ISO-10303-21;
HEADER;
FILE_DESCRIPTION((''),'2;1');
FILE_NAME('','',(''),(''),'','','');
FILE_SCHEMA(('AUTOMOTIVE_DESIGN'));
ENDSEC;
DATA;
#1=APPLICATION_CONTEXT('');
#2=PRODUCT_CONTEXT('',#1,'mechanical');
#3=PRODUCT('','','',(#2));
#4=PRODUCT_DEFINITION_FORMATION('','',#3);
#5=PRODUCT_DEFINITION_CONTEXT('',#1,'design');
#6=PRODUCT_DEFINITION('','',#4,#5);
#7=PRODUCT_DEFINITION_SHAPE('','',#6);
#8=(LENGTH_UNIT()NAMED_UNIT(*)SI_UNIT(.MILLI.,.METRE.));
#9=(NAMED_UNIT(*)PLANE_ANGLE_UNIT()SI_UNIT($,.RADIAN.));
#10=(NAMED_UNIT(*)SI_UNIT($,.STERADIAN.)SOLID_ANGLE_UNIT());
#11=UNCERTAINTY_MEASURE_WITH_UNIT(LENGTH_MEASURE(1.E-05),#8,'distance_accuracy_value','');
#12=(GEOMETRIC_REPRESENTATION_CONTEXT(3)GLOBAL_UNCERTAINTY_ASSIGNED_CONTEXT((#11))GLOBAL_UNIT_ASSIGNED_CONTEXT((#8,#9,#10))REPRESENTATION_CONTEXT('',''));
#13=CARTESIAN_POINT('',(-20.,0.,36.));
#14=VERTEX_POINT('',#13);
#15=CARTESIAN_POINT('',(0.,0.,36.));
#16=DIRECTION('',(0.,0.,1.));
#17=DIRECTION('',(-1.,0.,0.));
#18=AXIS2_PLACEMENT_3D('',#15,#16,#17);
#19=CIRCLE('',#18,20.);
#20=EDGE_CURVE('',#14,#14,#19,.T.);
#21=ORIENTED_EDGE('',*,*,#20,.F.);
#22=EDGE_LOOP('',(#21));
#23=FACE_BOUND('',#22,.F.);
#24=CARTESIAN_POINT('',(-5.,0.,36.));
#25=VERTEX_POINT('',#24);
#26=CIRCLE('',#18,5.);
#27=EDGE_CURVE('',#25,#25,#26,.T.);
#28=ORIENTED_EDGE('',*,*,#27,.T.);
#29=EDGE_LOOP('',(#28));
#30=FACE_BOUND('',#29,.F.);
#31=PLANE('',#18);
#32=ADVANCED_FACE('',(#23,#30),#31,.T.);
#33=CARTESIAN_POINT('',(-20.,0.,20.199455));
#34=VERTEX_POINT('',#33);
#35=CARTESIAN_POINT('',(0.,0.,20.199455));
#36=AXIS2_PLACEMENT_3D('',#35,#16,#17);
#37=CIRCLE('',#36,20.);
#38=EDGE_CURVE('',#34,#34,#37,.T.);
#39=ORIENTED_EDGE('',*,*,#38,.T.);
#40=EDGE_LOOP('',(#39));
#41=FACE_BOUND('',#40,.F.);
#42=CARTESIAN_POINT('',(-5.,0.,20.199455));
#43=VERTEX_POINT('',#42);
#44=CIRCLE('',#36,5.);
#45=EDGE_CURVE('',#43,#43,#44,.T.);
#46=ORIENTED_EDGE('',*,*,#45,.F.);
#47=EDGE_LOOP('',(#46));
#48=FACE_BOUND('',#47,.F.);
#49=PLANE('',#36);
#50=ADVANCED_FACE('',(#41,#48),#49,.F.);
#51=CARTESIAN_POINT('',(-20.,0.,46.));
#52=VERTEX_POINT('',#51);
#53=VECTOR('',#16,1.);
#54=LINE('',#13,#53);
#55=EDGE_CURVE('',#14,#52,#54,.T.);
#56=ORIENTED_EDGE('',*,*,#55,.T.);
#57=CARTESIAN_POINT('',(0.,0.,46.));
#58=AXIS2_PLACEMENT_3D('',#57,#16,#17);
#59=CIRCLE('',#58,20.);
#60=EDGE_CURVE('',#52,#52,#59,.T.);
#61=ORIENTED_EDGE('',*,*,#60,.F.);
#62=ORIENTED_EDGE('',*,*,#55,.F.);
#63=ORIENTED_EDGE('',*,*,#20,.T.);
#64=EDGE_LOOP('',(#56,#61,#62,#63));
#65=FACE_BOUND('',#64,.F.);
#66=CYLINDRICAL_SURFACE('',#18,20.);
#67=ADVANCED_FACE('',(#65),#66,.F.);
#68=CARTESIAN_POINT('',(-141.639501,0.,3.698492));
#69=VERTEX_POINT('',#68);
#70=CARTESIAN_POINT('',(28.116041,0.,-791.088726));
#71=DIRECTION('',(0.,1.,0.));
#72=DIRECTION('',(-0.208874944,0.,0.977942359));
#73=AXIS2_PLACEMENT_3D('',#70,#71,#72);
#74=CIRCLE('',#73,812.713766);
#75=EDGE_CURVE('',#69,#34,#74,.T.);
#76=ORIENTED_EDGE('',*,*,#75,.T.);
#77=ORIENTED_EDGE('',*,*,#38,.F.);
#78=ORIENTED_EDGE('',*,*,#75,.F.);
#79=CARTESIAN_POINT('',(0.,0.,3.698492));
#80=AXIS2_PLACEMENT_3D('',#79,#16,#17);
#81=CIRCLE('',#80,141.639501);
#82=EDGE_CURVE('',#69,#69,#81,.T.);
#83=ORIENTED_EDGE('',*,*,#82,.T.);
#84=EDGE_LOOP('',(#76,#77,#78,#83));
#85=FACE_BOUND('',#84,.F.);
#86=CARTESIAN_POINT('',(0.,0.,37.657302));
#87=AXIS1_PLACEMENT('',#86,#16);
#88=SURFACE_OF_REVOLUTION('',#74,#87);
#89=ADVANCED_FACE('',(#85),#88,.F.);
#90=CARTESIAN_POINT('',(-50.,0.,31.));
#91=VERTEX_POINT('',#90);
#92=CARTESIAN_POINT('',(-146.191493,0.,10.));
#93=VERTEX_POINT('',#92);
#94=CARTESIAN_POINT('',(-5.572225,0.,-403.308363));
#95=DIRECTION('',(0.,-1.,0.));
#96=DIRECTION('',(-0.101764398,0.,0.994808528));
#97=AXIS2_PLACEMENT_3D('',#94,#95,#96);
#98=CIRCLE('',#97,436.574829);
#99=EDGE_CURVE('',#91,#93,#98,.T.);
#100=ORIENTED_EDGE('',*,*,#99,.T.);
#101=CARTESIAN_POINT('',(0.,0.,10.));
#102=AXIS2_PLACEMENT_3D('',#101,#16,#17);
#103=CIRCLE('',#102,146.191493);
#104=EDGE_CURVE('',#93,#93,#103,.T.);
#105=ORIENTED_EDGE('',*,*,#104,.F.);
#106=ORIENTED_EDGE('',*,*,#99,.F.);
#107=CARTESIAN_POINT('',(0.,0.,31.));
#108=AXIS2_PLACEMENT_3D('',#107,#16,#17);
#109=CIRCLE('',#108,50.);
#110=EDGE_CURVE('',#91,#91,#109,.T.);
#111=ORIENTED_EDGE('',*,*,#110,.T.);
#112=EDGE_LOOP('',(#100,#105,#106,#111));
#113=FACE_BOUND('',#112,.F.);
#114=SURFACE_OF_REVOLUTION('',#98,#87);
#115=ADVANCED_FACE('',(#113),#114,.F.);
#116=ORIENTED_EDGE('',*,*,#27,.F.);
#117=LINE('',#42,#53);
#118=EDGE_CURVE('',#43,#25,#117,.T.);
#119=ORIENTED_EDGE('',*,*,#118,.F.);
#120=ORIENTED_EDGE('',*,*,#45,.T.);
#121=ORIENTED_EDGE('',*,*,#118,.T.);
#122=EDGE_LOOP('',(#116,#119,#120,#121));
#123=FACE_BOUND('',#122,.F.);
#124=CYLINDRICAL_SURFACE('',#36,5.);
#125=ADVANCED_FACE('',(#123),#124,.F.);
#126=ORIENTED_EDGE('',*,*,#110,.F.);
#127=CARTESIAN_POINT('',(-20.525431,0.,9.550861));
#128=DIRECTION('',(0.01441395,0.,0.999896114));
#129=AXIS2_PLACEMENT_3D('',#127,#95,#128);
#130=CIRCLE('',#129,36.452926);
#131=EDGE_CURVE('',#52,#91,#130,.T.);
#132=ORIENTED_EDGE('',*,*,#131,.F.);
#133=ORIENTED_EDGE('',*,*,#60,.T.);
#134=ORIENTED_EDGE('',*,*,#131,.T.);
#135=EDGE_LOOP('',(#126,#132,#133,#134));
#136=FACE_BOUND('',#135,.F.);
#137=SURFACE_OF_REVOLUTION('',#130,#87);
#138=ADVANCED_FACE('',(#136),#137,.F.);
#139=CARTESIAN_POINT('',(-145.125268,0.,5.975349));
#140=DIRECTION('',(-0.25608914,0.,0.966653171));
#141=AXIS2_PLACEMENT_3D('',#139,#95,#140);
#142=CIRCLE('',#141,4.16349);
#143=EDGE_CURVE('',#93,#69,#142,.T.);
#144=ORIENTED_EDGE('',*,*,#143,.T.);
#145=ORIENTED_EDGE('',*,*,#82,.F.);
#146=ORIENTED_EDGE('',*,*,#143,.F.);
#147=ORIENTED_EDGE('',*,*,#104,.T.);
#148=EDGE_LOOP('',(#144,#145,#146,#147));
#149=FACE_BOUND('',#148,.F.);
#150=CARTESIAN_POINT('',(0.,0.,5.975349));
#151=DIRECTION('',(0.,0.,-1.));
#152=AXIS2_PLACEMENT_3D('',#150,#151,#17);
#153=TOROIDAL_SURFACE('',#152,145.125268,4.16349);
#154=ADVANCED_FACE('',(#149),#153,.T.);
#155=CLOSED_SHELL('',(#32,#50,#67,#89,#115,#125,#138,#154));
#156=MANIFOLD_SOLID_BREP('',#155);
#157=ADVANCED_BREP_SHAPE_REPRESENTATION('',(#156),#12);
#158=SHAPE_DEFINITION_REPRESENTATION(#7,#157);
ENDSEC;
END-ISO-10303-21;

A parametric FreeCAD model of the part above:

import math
import FreeCAD as App
import Part
import Sketcher
Q = App.Units.Quantity

doc = App.newDocument("Part")
body = doc.addObject("PartDesign::Body", "Body")

sketch1 = body.newObject("Sketcher::SketchObject", "Sketch")
sketch1.AttachmentSupport = (doc.getObject("XZ_Plane"), [""])
sketch1.MapMode = "FlatFace"
sketch1.addGeometry([
    Part.LineSegment(App.Vector(-5, 20.199455, 0), App.Vector(-5, 36, 0)),
    Part.LineSegment(App.Vector(-5, 36, 0), App.Vector(-20, 36, 0)),
    Part.LineSegment(App.Vector(-20, 36, 0), App.Vector(-20, 46, 0)),
    Part.ArcOfCircle(Part.Circle(App.Vector(-20.525431, 9.550861, 0), App.Vector(0, 0, 1), 36.452926), math.radians(89.174113), math.radians(143.955989)),
    Part.ArcOfCircle(Part.Circle(App.Vector(-5.572225, -403.308363, 0), App.Vector(0, 0, 1), 436.574829), math.radians(95.840781), math.radians(108.789766)),
    Part.ArcOfCircle(Part.Circle(App.Vector(-145.125268, 5.975349, 0), App.Vector(0, 0, 1), 4.16349), math.radians(104.838131), math.radians(326.847964)),
    Part.ArcOfCircle(Part.Circle(App.Vector(28.116041, -791.088726, 0), App.Vector(0, 0, 1), 812.713766), math.radians(93.394134), math.radians(102.056429)),
    Part.LineSegment(App.Vector(-20, 20.199455, 0), App.Vector(-5, 20.199455, 0)),
], False)
sketch1.addConstraint([
    Sketcher.Constraint("Coincident", 0, 2, 1, 1),
    Sketcher.Constraint("Coincident", 1, 2, 2, 1),
    Sketcher.Constraint("Coincident", 2, 2, 3, 1),
    Sketcher.Constraint("Coincident", 3, 2, 4, 1),
    Sketcher.Constraint("Coincident", 4, 2, 5, 1),
    Sketcher.Constraint("Coincident", 5, 2, 6, 2),
    Sketcher.Constraint("Coincident", 6, 1, 7, 1),
    Sketcher.Constraint("Coincident", 7, 2, 0, 1),
    Sketcher.Constraint("Vertical", 0),
    Sketcher.Constraint("Horizontal", 1),
    Sketcher.Constraint("Vertical", 2),
    Sketcher.Constraint("Horizontal", 7),
    Sketcher.Constraint("Equal", 1, 7),
    Sketcher.Constraint("DistanceX", 1, 2, 1, 1, Q("15 mm")),
    Sketcher.Constraint("DistanceY", 2, 1, 2, 2, Q("10 mm")),
    Sketcher.Constraint("DistanceX", 0, 2, -1, 1, Q("5 mm")),
    Sketcher.Constraint("DistanceY", -1, 1, 0, 2, Q("36 mm")),
    Sketcher.Constraint("DistanceX", 3, 2, -1, 1, Q("50 mm")),
    Sketcher.Constraint("DistanceY", -1, 1, 3, 2, Q("31 mm")),
    Sketcher.Constraint("DistanceY", -1, 1, 4, 2, Q("10 mm")),
    Sketcher.Constraint("Radius", 4, Q("436.574829 mm")),
    Sketcher.Constraint("Radius", 5, Q("4.16349 mm")),
    Sketcher.Constraint("Radius", 3, Q("36.452926 mm")),
    Sketcher.Constraint("Radius", 6, Q("812.713766 mm")),
    Sketcher.Constraint("DistanceX", 5, 2, -1, 1, Q("141.639501 mm")),
    Sketcher.Constraint("DistanceY", 0, 1, 0, 2, Q("15.800545 mm")),
    Sketcher.Constraint("DistanceX", 5, 3, -1, 1, Q("145.125268 mm")),
    Sketcher.Constraint("DistanceY", -1, 1, 5, 3, Q("5.975349 mm")),
])
revolution = body.newObject("PartDesign::Revolution", "Revolution")
revolution.Profile = sketch1
revolution.ReferenceAxis = (sketch1, ["V_Axis"])
revolution.Angle = 360

doc.recompute()
